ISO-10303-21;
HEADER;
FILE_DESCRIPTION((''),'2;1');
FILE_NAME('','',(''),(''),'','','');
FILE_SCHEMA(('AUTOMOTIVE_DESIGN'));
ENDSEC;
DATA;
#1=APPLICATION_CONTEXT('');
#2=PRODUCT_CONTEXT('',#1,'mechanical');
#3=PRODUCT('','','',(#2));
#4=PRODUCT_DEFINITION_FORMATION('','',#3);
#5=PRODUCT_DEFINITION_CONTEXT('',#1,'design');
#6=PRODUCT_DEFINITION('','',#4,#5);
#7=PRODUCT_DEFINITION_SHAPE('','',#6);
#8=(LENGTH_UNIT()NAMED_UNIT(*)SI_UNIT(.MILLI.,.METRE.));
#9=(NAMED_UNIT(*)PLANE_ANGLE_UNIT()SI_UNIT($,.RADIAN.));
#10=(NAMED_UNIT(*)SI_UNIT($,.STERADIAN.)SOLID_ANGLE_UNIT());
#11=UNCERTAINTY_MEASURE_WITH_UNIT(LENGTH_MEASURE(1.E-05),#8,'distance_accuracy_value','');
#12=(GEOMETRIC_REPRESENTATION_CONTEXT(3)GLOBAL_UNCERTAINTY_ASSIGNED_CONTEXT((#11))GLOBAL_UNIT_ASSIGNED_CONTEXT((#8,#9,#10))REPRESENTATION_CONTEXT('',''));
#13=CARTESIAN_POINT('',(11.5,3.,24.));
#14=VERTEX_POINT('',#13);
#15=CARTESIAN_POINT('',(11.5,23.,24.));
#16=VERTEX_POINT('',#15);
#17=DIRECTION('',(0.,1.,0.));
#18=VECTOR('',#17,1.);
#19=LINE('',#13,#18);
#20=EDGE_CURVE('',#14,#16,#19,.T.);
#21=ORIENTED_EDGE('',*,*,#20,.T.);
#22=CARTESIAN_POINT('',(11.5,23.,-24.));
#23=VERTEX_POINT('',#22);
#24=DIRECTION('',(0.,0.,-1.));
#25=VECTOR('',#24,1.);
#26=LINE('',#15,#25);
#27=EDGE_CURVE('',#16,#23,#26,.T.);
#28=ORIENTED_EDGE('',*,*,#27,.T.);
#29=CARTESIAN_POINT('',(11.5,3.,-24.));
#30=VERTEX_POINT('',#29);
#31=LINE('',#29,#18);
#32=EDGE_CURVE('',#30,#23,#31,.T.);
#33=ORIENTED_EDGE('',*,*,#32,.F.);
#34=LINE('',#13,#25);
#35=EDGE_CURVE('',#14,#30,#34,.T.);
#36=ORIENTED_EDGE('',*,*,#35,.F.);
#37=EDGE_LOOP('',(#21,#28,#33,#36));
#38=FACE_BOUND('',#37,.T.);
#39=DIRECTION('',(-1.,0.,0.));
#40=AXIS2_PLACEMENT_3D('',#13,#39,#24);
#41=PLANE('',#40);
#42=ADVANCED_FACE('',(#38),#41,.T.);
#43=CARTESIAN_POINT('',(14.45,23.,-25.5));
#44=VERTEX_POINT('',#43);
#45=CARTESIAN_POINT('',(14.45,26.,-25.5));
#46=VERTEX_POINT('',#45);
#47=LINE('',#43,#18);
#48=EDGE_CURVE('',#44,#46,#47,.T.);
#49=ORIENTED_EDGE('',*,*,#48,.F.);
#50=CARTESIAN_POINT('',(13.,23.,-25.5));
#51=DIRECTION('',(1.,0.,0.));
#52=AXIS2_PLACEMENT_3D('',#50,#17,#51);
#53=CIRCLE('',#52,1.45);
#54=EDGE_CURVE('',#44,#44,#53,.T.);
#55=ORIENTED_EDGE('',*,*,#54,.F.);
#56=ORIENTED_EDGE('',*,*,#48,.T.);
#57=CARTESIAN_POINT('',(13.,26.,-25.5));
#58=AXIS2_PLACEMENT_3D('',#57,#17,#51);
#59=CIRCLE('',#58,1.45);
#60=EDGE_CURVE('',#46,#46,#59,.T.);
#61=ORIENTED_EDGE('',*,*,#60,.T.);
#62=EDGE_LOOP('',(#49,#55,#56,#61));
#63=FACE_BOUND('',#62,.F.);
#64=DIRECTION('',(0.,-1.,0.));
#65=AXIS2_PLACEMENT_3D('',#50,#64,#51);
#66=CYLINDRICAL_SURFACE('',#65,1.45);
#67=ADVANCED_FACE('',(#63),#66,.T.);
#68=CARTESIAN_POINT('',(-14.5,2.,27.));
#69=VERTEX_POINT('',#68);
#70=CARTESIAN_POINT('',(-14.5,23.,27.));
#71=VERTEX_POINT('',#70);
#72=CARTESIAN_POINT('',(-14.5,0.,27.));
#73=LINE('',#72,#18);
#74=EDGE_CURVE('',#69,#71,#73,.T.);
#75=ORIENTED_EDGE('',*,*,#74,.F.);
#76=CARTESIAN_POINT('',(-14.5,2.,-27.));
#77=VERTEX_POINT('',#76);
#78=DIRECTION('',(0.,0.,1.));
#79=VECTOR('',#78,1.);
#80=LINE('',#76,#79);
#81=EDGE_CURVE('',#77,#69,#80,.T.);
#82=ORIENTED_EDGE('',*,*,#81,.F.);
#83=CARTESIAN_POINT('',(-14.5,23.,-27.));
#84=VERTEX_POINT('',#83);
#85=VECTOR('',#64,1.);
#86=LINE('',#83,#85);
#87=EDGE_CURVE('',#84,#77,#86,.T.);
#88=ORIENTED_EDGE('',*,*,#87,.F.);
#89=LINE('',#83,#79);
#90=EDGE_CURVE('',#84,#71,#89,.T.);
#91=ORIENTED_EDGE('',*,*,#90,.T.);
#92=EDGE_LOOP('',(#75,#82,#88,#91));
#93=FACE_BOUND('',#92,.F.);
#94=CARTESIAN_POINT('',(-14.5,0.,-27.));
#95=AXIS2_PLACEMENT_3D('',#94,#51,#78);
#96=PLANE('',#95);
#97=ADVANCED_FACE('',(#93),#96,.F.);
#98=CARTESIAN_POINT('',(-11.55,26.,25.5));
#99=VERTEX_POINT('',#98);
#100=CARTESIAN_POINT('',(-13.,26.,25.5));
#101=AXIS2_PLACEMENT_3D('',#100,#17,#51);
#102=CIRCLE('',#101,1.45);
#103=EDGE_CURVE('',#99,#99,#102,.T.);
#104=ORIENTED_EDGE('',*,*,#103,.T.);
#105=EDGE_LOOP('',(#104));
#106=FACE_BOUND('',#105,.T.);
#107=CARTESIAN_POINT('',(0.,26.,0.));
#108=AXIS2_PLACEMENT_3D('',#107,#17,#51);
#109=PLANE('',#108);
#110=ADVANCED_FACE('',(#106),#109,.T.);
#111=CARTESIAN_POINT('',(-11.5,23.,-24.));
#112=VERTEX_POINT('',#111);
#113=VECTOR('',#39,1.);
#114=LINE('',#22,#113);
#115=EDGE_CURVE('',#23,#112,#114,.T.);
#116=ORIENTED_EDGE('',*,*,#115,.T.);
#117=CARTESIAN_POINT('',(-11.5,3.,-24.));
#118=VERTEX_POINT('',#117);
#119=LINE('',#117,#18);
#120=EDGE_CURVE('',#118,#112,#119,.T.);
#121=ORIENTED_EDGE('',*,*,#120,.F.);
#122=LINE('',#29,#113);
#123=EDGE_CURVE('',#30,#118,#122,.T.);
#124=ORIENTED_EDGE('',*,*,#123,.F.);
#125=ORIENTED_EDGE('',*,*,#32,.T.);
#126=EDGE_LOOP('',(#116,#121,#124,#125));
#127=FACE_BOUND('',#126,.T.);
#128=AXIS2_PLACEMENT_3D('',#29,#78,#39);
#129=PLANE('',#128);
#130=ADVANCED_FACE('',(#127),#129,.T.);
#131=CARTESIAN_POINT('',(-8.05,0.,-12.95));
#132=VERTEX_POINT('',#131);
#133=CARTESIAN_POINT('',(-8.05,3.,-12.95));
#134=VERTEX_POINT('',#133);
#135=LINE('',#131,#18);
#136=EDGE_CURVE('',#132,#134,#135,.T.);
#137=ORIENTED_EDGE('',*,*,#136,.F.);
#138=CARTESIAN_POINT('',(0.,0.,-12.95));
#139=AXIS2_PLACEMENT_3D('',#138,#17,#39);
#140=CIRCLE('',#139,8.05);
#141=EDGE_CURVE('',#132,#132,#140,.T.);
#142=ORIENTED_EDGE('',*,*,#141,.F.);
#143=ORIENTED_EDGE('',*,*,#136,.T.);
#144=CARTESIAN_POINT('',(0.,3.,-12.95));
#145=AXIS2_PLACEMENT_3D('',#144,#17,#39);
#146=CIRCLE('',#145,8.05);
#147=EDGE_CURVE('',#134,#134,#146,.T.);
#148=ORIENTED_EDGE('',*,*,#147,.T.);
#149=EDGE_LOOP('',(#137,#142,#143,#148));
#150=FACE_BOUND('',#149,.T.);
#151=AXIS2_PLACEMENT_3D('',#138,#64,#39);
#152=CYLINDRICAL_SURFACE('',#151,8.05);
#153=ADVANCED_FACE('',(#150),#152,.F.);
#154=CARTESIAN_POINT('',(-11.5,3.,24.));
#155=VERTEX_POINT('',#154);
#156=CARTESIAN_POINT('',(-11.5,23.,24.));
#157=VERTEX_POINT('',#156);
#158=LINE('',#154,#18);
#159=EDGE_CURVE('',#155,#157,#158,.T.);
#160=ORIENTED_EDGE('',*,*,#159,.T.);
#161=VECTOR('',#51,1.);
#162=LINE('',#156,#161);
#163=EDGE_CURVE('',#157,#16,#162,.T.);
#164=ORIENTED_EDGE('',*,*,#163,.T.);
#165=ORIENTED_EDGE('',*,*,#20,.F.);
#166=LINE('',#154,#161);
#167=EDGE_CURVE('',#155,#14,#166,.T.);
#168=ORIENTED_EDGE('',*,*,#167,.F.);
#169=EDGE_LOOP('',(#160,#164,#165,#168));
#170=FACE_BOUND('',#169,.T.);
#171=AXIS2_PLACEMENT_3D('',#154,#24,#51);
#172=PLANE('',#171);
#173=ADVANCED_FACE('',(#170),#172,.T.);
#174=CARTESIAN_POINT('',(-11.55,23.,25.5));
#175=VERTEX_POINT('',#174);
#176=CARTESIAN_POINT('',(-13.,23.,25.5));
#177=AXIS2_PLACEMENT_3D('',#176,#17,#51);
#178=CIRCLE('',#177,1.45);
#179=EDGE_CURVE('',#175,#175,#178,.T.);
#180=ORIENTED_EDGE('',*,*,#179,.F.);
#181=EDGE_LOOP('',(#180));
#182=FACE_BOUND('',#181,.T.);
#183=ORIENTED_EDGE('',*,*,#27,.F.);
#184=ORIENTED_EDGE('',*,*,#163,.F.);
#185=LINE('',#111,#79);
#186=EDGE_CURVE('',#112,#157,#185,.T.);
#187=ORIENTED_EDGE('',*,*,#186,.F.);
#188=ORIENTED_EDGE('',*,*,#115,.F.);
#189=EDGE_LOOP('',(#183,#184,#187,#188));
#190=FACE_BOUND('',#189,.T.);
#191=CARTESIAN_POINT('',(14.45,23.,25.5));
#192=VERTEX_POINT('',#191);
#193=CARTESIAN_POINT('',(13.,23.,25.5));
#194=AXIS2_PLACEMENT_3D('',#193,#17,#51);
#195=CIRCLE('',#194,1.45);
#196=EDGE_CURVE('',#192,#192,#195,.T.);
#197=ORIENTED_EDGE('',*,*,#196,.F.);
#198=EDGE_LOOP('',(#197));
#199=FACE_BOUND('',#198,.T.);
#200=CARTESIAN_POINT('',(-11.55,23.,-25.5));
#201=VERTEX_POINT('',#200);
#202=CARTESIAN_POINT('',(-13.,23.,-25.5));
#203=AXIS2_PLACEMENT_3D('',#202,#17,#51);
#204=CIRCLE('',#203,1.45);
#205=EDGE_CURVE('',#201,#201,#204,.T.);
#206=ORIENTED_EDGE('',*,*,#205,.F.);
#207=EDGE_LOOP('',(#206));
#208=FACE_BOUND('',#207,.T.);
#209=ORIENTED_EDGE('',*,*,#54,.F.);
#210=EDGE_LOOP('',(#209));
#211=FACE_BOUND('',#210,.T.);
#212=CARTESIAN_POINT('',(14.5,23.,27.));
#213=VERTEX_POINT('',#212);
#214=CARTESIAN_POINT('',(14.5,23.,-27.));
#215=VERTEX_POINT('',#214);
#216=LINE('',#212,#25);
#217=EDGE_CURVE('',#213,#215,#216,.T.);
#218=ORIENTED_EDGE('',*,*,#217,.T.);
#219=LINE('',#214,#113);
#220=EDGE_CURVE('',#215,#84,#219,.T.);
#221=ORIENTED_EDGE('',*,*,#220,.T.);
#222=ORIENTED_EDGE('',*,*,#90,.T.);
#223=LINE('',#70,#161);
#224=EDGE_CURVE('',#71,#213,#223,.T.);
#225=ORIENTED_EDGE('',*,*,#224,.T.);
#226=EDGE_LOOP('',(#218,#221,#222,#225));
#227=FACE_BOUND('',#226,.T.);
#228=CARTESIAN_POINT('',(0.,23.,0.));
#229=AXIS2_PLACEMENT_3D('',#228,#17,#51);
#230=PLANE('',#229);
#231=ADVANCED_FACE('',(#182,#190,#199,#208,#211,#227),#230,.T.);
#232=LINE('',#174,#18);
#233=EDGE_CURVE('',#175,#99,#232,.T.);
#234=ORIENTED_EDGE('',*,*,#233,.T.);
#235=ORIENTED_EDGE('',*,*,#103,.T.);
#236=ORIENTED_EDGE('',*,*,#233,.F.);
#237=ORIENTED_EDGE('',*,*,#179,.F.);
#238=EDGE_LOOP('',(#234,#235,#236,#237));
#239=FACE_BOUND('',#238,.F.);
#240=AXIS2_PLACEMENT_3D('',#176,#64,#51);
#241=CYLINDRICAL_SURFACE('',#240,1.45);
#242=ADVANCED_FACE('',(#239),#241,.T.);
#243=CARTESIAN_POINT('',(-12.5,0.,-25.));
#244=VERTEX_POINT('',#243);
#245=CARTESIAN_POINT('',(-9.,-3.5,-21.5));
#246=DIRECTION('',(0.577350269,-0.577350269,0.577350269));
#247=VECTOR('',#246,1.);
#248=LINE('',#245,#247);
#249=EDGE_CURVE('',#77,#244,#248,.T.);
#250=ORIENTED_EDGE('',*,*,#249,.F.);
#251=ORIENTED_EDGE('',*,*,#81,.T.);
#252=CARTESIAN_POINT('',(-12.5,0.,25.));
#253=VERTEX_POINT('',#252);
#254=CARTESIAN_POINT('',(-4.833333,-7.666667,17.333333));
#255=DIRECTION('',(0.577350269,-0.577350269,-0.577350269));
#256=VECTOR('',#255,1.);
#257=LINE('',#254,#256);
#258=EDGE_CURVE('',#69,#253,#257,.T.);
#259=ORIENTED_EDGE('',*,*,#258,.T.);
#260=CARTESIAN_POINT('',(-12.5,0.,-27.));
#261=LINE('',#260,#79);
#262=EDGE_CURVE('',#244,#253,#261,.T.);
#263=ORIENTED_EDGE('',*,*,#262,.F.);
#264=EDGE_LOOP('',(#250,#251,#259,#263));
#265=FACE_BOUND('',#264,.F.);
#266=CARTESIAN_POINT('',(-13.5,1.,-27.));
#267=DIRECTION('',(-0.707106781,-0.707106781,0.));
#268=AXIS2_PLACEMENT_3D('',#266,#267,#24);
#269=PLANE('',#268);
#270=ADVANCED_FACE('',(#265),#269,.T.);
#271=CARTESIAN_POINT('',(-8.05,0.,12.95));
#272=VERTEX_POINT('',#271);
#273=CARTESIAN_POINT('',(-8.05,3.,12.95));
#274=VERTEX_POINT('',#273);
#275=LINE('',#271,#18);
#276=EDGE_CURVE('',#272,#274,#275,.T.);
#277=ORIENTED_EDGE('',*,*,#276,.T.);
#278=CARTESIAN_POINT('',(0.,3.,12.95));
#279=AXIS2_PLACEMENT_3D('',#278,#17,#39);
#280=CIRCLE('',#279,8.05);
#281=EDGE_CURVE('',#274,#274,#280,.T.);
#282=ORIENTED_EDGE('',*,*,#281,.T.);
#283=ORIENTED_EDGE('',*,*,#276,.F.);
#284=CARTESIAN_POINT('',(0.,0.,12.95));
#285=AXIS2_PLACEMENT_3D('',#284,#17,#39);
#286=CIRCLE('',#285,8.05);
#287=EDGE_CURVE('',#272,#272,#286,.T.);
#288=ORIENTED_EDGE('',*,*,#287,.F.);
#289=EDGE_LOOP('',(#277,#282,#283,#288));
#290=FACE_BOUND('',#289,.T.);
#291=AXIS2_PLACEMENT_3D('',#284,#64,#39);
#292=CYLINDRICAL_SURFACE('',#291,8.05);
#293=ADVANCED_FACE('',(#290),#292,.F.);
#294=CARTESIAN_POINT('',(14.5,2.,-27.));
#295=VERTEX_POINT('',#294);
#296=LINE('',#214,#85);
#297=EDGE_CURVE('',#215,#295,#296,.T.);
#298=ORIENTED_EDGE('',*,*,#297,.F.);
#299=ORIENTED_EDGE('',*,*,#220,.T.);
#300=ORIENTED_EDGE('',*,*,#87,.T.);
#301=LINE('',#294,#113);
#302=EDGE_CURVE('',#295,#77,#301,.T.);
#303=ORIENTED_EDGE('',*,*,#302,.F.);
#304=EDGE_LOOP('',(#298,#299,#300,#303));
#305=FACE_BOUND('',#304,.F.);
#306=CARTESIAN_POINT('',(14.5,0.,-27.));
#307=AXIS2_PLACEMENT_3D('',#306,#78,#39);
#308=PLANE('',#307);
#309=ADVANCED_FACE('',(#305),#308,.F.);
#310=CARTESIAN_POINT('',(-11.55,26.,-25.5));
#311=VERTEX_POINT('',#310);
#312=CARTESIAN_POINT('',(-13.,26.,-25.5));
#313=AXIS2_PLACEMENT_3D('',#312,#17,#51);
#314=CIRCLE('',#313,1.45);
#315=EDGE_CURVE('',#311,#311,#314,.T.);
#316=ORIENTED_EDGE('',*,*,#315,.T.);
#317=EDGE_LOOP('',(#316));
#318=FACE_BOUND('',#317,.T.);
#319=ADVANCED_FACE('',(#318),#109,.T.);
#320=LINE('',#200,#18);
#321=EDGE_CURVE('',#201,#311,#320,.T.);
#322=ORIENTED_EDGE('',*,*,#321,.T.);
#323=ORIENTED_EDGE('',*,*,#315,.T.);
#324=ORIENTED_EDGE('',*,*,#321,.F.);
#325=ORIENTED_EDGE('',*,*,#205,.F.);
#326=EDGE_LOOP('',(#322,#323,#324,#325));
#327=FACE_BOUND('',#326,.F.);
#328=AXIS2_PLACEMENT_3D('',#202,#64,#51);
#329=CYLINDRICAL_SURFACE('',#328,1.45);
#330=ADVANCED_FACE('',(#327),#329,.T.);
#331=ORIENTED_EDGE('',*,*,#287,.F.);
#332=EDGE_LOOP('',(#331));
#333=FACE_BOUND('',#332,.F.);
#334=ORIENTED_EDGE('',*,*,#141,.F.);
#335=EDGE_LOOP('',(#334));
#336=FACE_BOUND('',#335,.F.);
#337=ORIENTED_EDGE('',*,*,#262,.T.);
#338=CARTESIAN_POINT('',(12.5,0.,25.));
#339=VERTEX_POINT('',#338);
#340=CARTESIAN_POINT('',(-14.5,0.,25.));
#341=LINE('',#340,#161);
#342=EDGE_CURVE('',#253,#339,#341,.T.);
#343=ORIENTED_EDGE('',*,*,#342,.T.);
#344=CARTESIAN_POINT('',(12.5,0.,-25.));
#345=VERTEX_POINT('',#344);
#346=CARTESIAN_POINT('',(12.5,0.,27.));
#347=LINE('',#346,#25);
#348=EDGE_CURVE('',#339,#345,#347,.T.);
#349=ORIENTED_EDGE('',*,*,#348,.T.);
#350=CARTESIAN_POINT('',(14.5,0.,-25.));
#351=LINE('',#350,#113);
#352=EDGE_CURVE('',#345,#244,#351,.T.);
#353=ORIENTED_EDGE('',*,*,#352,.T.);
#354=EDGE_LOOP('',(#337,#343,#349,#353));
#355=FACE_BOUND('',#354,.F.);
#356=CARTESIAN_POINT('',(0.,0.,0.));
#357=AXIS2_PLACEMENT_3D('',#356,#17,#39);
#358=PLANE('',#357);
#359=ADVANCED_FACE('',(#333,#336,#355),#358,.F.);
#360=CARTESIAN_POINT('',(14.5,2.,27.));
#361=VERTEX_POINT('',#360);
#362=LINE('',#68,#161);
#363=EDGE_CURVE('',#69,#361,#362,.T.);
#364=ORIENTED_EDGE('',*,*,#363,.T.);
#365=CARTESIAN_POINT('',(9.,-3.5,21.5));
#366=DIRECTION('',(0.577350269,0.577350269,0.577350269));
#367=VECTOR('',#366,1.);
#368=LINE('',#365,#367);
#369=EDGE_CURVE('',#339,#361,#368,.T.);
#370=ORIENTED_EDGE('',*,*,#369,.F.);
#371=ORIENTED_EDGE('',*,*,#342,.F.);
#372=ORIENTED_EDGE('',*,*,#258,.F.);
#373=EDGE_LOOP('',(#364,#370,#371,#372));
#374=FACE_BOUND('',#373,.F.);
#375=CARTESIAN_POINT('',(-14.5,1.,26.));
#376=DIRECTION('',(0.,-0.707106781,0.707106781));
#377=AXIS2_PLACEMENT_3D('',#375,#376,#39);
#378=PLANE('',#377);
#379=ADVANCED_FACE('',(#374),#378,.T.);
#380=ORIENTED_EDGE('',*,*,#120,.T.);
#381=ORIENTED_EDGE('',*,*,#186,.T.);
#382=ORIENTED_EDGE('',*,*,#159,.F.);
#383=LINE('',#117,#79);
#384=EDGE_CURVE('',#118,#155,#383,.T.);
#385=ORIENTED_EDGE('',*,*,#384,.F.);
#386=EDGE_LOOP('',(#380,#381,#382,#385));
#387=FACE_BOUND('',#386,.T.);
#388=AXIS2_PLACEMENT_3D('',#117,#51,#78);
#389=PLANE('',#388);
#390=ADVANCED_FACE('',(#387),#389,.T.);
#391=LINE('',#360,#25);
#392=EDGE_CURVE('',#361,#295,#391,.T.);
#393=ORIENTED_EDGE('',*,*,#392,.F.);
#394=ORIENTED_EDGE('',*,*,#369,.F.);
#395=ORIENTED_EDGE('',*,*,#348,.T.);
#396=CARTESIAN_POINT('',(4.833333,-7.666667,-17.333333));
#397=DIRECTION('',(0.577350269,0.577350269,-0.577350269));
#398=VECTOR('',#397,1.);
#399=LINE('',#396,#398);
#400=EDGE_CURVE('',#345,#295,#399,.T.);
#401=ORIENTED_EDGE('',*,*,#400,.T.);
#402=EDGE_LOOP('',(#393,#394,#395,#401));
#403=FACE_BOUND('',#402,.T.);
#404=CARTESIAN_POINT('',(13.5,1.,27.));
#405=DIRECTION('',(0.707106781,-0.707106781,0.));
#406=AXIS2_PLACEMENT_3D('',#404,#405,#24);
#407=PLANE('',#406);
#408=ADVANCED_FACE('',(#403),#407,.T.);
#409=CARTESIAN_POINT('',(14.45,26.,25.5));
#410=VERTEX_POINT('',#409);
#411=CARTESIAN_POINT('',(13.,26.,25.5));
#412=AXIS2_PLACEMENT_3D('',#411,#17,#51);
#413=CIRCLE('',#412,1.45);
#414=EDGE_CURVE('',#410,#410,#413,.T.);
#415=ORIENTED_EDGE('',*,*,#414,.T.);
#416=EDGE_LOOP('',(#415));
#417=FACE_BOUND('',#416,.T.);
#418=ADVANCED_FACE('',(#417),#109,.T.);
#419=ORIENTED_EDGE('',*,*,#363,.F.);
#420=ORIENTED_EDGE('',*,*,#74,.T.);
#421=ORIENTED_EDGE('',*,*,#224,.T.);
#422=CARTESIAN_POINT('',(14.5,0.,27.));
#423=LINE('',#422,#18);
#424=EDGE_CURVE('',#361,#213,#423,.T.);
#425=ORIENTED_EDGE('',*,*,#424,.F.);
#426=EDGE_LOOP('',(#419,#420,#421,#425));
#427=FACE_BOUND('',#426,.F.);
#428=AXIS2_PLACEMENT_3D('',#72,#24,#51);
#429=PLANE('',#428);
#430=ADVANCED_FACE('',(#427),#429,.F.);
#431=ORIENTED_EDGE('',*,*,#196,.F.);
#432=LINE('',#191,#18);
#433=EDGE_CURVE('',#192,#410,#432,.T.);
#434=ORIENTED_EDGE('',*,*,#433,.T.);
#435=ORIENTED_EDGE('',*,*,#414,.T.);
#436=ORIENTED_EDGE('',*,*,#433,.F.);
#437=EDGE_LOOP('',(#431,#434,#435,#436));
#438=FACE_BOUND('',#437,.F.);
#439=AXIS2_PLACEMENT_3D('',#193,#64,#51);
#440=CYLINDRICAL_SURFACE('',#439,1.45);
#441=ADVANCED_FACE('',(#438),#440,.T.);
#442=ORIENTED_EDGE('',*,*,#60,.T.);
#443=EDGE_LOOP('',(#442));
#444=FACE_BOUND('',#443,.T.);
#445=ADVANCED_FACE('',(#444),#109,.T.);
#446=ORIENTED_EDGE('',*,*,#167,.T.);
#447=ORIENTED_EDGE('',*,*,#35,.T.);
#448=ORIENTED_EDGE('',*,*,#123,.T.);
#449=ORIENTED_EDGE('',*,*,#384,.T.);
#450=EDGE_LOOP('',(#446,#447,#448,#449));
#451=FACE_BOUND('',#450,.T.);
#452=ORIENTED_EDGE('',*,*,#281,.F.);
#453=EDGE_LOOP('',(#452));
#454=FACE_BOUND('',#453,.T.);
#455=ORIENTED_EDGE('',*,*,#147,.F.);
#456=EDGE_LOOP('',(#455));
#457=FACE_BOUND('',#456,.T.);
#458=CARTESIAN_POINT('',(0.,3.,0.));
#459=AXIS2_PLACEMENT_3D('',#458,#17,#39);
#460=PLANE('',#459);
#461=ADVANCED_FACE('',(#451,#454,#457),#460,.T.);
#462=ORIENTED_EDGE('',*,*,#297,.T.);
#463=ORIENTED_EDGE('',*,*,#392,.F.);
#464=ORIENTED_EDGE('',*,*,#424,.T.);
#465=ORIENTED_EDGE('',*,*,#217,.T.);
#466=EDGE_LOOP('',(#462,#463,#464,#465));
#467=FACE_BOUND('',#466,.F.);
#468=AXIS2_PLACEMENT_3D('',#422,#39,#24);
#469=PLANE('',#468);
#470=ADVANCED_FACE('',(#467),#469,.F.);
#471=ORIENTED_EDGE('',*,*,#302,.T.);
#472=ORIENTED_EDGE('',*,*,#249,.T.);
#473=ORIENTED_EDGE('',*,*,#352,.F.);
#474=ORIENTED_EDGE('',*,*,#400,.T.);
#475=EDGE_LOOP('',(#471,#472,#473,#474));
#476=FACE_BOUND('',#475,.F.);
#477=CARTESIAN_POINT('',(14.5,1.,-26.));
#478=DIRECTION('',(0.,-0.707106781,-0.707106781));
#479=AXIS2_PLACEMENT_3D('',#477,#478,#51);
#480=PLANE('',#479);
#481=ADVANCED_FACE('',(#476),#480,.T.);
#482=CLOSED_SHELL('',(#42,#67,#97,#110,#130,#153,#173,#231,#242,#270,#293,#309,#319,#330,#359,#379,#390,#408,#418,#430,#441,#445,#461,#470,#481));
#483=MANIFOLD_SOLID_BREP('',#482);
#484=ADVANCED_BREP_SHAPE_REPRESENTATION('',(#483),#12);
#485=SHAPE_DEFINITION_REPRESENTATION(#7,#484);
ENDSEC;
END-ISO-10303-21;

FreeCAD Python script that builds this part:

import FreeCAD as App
import Part
import Sketcher

V = App.Vector


def edges_at(feature, points):
    """Names of the edges that pass closest to the given points."""
    edges = feature.Shape.Edges
    near = lambda p: min(range(len(edges)), key=lambda i: edges[i].distToShape(Part.Vertex(*p))[0])
    return sorted({f"Edge{near(p) + 1}" for p in points})


def add_polygon(sketch, points):
    """Adds a closed chain of lines whose ends are joined by coincident constraints."""
    first, n = sketch.GeometryCount, len(points)
    for a, b in zip(points, points[1:] + points[:1]):
        sketch.addGeometry(Part.LineSegment(App.Vector(*a, 0), App.Vector(*b, 0)), False)
    for i in range(n):
        sketch.addConstraint(Sketcher.Constraint("Coincident", first + i, 2, first + (i + 1) % n, 1))

doc = App.newDocument("Part")
body = doc.addObject("PartDesign::Body", "Body")

# Sketch on XZ plane
sketch1 = body.newObject("Sketcher::SketchObject", "Sketch")
sketch1.AttachmentSupport = (doc.getObject("XZ_Plane"), [""])
sketch1.MapMode = "FlatFace"
add_polygon(sketch1, [(-14.5, -27), (-14.5, 27), (14.5, 27), (14.5, -27)])  # lines 0-3
sketch1.addGeometry(Part.Circle(V(0, -12.95, 0), V(0, 0, 1), 8.05), False)  # 4
sketch1.addGeometry(Part.Circle(V(0, 12.95, 0), V(0, 0, 1), 8.05), False)  # 5
sketch1.addConstraint([
    Sketcher.Constraint("Vertical", 0),
    Sketcher.Constraint("Horizontal", 1),
    Sketcher.Constraint("Vertical", 2),
    Sketcher.Constraint("Horizontal", 3),
    Sketcher.Constraint("Equal", 4, 5),
    Sketcher.Constraint("Symmetric", 4, 3, 5, 3, -1, 1),
    Sketcher.Constraint("Symmetric", 0, 2, 2, 2, -1, 1),
    Sketcher.Constraint("PointOnObject", 4, 3, -2),
    Sketcher.Constraint("Diameter", 4, 16.1),
    Sketcher.Constraint("DistanceX", 1, 1, 1, 2, 29.0),
    Sketcher.Constraint("DistanceY", 0, 1, 0, 2, 54.0),
    Sketcher.Constraint("DistanceY", 4, 3, 5, 3, 25.9),
])
pad1 = body.newObject("PartDesign::Pad", "Pad")
pad1.Profile = sketch1
pad1.Length = 3
pad1.Reversed = True

# Sketch on XZ plane
sketch2 = body.newObject("Sketcher::SketchObject", "Sketch001")
sketch2.AttachmentSupport = (doc.getObject("XZ_Plane"), [""])
sketch2.MapMode = "FlatFace"
sketch2.AttachmentOffset = App.Placement(V(0, 0, -3), App.Rotation())
add_polygon(sketch2, [(-14.5, -27), (-14.5, 27), (14.5, 27), (14.5, -27)])  # lines 0-3
add_polygon(sketch2, [(11.5, 24), (-11.5, 24), (-11.5, -24), (11.5, -24)])  # lines 4-7
sketch2.addConstraint([
    Sketcher.Constraint("Vertical", 0),
    Sketcher.Constraint("Horizontal", 1),
    Sketcher.Constraint("Vertical", 2),
    Sketcher.Constraint("Horizontal", 3),
    Sketcher.Constraint("Horizontal", 4),
    Sketcher.Constraint("Vertical", 5),
    Sketcher.Constraint("Horizontal", 6),
    Sketcher.Constraint("Vertical", 7),
    Sketcher.Constraint("Symmetric", 0, 2, 2, 2, -1, 1),
    Sketcher.Constraint("Symmetric", 4, 2, 6, 2, -1, 1),
    Sketcher.Constraint("DistanceX", 0, 2, 4, 2, 3.0),
    Sketcher.Constraint("DistanceY", 4, 2, 0, 2, 3.0),
    Sketcher.Constraint("DistanceX", 1, 1, 1, 2, 29.0),
    Sketcher.Constraint("DistanceY", 0, 1, 0, 2, 54.0),
])
pad2 = body.newObject("PartDesign::Pad", "Pad001")
pad2.Profile = sketch2
pad2.Length = 20
pad2.Reversed = True

# Sketch on XZ plane
sketch3 = body.newObject("Sketcher::SketchObject", "Sketch002")
sketch3.AttachmentSupport = (doc.getObject("XZ_Plane"), [""])
sketch3.MapMode = "FlatFace"
sketch3.AttachmentOffset = App.Placement(V(0, 0, -23), App.Rotation())
sketch3.addGeometry([
    Part.Circle(V(-13, 25.5, 0), V(0, 0, 1), 1.45),
    Part.Circle(V(-13, -25.5, 0), V(0, 0, 1), 1.45),
    Part.Circle(V(13, 25.5, 0), V(0, 0, 1), 1.45),
    Part.Circle(V(13, -25.5, 0), V(0, 0, 1), 1.45),
], False)
sketch3.addConstraint([
    Sketcher.Constraint("Equal", 0, 1),
    Sketcher.Constraint("Equal", 1, 2),
    Sketcher.Constraint("Equal", 2, 3),
    Sketcher.Constraint("Symmetric", 1, 3, 2, 3, -1, 1),
    Sketcher.Constraint("Symmetric", 0, 3, 3, 3, -1, 1),
    Sketcher.Constraint("Symmetric", 0, 3, 2, 3, -2),
    Sketcher.Constraint("Diameter", 0, 2.9),
    Sketcher.Constraint("DistanceY", 1, 3, 0, 3, 51.0),
    Sketcher.Constraint("DistanceX", 0, 3, 2, 3, 26.0),
])
pad3 = body.newObject("PartDesign::Pad", "Pad002")
pad3.Profile = sketch3
pad3.Length = 3
pad3.Reversed = True
doc.recompute()

chamfer = body.newObject("PartDesign::Chamfer", "Chamfer")
chamfer.Base = (pad3, edges_at(pad3, [
    (14.5, 0, 0),
    (0, 0, 27),
    (-14.5, 0, 0),
    (0, 0, -27),
]))
chamfer.Size = 2

doc.recompute()
